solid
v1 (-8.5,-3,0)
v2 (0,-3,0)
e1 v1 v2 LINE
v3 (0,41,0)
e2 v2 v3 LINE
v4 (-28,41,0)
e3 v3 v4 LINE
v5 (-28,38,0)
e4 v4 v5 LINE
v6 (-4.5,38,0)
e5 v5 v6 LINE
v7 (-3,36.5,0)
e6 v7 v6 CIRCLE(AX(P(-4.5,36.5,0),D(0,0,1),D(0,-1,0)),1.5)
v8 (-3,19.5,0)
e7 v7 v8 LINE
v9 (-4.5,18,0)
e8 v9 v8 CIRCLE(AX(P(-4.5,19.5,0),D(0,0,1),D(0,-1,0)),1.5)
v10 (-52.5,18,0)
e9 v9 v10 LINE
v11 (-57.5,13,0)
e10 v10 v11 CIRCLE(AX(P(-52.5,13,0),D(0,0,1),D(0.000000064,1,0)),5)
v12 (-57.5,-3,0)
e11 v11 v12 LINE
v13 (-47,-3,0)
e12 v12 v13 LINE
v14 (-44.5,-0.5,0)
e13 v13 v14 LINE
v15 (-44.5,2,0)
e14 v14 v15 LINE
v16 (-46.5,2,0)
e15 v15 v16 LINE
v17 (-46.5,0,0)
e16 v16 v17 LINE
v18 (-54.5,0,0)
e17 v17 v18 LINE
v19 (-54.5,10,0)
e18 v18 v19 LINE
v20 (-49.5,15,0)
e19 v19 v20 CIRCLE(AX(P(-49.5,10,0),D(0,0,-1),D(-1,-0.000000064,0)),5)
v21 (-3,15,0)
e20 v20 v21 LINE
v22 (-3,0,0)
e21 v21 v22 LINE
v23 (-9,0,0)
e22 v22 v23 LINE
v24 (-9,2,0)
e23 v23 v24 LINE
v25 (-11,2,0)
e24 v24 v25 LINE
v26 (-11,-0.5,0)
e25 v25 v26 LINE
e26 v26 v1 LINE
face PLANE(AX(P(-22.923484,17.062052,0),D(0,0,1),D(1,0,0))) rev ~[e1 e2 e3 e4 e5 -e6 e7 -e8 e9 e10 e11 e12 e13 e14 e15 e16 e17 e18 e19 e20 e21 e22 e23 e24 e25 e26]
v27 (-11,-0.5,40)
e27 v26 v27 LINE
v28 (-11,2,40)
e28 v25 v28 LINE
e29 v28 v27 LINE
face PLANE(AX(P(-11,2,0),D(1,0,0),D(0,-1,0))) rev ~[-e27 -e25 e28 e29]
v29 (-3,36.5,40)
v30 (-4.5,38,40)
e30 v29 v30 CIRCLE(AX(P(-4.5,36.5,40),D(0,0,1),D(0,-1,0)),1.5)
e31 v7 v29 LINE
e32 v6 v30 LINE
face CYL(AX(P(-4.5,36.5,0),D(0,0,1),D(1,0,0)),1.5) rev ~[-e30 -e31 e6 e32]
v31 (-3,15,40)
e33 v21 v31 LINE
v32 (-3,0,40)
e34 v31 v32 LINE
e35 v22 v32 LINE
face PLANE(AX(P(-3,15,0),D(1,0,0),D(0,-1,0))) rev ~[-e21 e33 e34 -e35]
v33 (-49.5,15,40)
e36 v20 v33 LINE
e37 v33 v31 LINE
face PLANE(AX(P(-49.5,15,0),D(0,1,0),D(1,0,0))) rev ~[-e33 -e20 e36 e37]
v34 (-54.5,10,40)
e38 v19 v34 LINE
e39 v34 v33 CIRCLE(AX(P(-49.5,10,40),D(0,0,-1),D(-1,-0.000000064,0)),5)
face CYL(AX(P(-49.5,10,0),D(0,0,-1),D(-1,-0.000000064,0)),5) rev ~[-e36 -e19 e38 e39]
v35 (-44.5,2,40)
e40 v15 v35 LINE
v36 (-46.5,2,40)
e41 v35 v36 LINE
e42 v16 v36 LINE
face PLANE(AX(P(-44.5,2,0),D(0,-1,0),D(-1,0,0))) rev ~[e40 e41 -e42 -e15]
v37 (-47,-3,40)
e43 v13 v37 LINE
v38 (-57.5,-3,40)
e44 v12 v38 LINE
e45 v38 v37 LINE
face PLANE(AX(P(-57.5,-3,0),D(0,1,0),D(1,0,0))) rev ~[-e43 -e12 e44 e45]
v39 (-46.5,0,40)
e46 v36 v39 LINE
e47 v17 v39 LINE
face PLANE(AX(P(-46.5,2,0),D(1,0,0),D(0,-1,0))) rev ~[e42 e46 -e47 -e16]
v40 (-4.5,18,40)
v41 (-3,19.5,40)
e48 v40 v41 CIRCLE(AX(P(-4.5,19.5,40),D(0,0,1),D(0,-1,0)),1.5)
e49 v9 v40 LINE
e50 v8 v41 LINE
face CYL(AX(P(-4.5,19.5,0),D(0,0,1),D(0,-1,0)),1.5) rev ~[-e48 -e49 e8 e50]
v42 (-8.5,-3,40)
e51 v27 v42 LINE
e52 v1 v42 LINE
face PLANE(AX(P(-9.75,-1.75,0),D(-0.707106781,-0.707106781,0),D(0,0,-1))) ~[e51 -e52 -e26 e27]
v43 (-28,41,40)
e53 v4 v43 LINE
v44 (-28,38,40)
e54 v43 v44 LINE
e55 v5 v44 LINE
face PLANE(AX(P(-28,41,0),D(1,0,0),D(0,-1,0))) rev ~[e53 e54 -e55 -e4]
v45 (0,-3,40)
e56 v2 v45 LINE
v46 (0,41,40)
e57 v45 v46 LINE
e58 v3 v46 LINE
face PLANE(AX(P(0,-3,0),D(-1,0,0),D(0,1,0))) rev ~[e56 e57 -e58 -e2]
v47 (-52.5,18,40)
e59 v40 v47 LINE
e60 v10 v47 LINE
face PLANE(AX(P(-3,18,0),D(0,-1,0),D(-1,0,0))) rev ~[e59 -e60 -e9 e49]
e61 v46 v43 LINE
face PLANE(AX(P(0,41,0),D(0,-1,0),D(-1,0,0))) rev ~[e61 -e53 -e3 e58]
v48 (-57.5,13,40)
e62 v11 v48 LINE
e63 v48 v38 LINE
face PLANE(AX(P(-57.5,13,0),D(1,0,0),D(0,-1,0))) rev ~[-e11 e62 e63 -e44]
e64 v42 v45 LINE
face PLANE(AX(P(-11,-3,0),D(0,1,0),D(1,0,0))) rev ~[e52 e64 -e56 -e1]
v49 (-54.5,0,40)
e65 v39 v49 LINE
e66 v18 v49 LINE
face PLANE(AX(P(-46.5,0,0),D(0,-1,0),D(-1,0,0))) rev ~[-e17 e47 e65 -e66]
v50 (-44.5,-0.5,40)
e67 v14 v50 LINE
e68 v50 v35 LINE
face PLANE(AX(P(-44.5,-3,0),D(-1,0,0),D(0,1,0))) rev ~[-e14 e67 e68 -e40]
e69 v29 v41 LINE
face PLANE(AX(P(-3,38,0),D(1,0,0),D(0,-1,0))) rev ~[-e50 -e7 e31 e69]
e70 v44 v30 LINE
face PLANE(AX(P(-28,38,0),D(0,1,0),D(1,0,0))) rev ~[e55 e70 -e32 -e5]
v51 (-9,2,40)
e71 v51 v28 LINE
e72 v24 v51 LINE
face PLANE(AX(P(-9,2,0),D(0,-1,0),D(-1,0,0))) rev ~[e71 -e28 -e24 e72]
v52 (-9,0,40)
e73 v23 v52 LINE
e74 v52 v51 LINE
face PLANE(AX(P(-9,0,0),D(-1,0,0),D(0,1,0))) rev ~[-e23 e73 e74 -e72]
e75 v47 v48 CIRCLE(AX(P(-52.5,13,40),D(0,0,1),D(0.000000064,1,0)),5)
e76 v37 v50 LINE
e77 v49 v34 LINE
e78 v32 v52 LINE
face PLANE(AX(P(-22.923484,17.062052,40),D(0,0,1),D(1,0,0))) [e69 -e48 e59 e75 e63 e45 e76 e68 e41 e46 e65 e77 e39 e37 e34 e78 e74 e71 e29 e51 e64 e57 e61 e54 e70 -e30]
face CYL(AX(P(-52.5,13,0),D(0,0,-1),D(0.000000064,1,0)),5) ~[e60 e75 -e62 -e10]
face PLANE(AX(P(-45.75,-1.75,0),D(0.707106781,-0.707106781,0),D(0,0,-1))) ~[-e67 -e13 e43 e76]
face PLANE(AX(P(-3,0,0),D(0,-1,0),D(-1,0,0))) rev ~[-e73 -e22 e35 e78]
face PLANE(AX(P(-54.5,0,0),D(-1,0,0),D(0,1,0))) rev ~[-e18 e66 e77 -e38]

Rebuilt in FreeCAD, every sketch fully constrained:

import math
import FreeCAD as App
import Part
import Sketcher


def edges_at(feature, points):
    """Names of the edges that pass closest to the given points."""
    edges = feature.Shape.Edges
    near = lambda p: min(range(len(edges)), key=lambda i: edges[i].distToShape(Part.Vertex(*p))[0])
    return sorted({f"Edge{near(p) + 1}" for p in points})

doc = App.newDocument("Part")
body = doc.addObject("PartDesign::Body", "Body")

sketch1 = body.newObject("Sketcher::SketchObject", "Sketch")
sketch1.AttachmentSupport = (doc.getObject("XY_Plane"), [""])
sketch1.MapMode = "FlatFace"
sketch1.addGeometry([
    Part.LineSegment(App.Vector(0, -3, 0), App.Vector(0, 41, 0)),
    Part.LineSegment(App.Vector(0, 41, 0), App.Vector(-28, 41, 0)),
    Part.LineSegment(App.Vector(-28, 41, 0), App.Vector(-28, 38, 0)),
    Part.LineSegment(App.Vector(-28, 38, 0), App.Vector(-3, 38, 0)),
    Part.LineSegment(App.Vector(-3, 38, 0), App.Vector(-3, 18, 0)),
    Part.LineSegment(App.Vector(-3, 18, 0), App.Vector(-52.5, 18, 0)),
    Part.ArcOfCircle(Part.Circle(App.Vector(-52.5, 13, 0), App.Vector(0, 0, 1), 5), math.radians(90), math.radians(180)),
    Part.LineSegment(App.Vector(-57.5, 13, 0), App.Vector(-57.5, -3, 0)),
    Part.LineSegment(App.Vector(-57.5, -3, 0), App.Vector(-44.5, -3, 0)),
    Part.LineSegment(App.Vector(-44.5, -3, 0), App.Vector(-44.5, 2, 0)),
    Part.LineSegment(App.Vector(-44.5, 2, 0), App.Vector(-46.5, 2, 0)),
    Part.LineSegment(App.Vector(-46.5, 2, 0), App.Vector(-46.5, 0, 0)),
    Part.LineSegment(App.Vector(-46.5, 0, 0), App.Vector(-54.5, 0, 0)),
    Part.LineSegment(App.Vector(-54.5, 0, 0), App.Vector(-54.5, 10, 0)),
    Part.ArcOfCircle(Part.Circle(App.Vector(-49.5, 10, 0), App.Vector(0, 0, 1), 5), math.radians(90), math.radians(180)),
    Part.LineSegment(App.Vector(-49.5, 15, 0), App.Vector(-3, 15, 0)),
    Part.LineSegment(App.Vector(-3, 15, 0), App.Vector(-3, 0, 0)),
    Part.LineSegment(App.Vector(-3, 0, 0), App.Vector(-9, 0, 0)),
    Part.LineSegment(App.Vector(-9, 0, 0), App.Vector(-9, 2, 0)),
    Part.LineSegment(App.Vector(-9, 2, 0), App.Vector(-11, 2, 0)),
    Part.LineSegment(App.Vector(-11, 2, 0), App.Vector(-11, -3, 0)),
    Part.LineSegment(App.Vector(-11, -3, 0), App.Vector(0, -3, 0)),
], False)
sketch1.addConstraint([
    Sketcher.Constraint("Coincident", 0, 2, 1, 1),
    Sketcher.Constraint("Coincident", 1, 2, 2, 1),
    Sketcher.Constraint("Coincident", 2, 2, 3, 1),
    Sketcher.Constraint("Coincident", 3, 2, 4, 1),
    Sketcher.Constraint("Coincident", 4, 2, 5, 1),
    Sketcher.Constraint("Tangent", 5, 2, 6, 1),
    Sketcher.Constraint("Tangent", 6, 2, 7, 1),
    Sketcher.Constraint("Coincident", 7, 2, 8, 1),
    Sketcher.Constraint("Coincident", 8, 2, 9, 1),
    Sketcher.Constraint("Coincident", 9, 2, 10, 1),
    Sketcher.Constraint("Coincident", 10, 2, 11, 1),
    Sketcher.Constraint("Coincident", 11, 2, 12, 1),
    Sketcher.Constraint("Coincident", 12, 2, 13, 1),
    Sketcher.Constraint("Tangent", 13, 2, 14, 2),
    Sketcher.Constraint("Tangent", 14, 1, 15, 1),
    Sketcher.Constraint("Coincident", 15, 2, 16, 1),
    Sketcher.Constraint("Coincident", 16, 2, 17, 1),
    Sketcher.Constraint("Coincident", 17, 2, 18, 1),
    Sketcher.Constraint("Coincident", 18, 2, 19, 1),
    Sketcher.Constraint("Coincident", 19, 2, 20, 1),
    Sketcher.Constraint("Coincident", 20, 2, 21, 1),
    Sketcher.Constraint("Coincident", 21, 2, 0, 1),
    Sketcher.Constraint("Vertical", 0),
    Sketcher.Constraint("Horizontal", 1),
    Sketcher.Constraint("Vertical", 2),
    Sketcher.Constraint("Horizontal", 3),
    Sketcher.Constraint("Vertical", 4),
    Sketcher.Constraint("Horizontal", 5),
    Sketcher.Constraint("Vertical", 7),
    Sketcher.Constraint("Horizontal", 8),
    Sketcher.Constraint("Vertical", 9),
    Sketcher.Constraint("Horizontal", 10),
    Sketcher.Constraint("Vertical", 11),
    Sketcher.Constraint("Horizontal", 12),
    Sketcher.Constraint("Vertical", 13),
    Sketcher.Constraint("Horizontal", 15),
    Sketcher.Constraint("Vertical", 16),
    Sketcher.Constraint("Horizontal", 17),
    Sketcher.Constraint("Vertical", 18),
    Sketcher.Constraint("Horizontal", 19),
    Sketcher.Constraint("Vertical", 20),
    Sketcher.Constraint("Horizontal", 21),
    Sketcher.Constraint("Equal", 6, 14),
    Sketcher.Constraint("PointOnObject", 0, 2, -2),
    Sketcher.Constraint("PointOnObject", 11, 2, -1),
    Sketcher.Constraint("PointOnObject", 16, 2, -1),
    Sketcher.Constraint("Horizontal", 10, 2, 18, 2),
    Sketcher.Constraint("Horizontal", 8, 2, 20, 2),
    Sketcher.Constraint("Vertical", 4, 2, 15, 2),
    Sketcher.Constraint("Equal", 10, 19),
    Sketcher.Constraint("Equal", 19, 11),
    Sketcher.Constraint("Radius", 6, 5.0),
    Sketcher.Constraint("DistanceX", 1, 2, 1, 1, 28.0),
    Sketcher.Constraint("DistanceX", 3, 1, 3, 2, 25.0),
    Sketcher.Constraint("DistanceX", 8, 1, 8, 2, 13.0),
    Sketcher.Constraint("DistanceX", 10, 2, 10, 1, 2.0),
    Sketcher.Constraint("DistanceX", 12, 2, 12, 1, 8.0),
    Sketcher.Constraint("DistanceX", 17, 2, 17, 1, 6.0),
    Sketcher.Constraint("DistanceY", 0, 1, 0, 2, 44.0),
    Sketcher.Constraint("DistanceY", 2, 2, 2, 1, 3.0),
    Sketcher.Constraint("DistanceY", 4, 2, 4, 1, 20.0),
    Sketcher.Constraint("DistanceY", 9, 1, 9, 2, 5.0),
    Sketcher.Constraint("DistanceY", 13, 1, 13, 2, 10.0),
    Sketcher.Constraint("DistanceX", 5, 2, 5, 1, 49.5),
])
pad1 = body.newObject("PartDesign::Pad", "Pad")
pad1.Profile = sketch1
pad1.Length = 40
doc.recompute()

chamfer = body.newObject("PartDesign::Chamfer", "Chamfer")
chamfer.Base = (pad1, edges_at(pad1, [(-11, -3, 20), (-44.5, -3, 20)]))
chamfer.Size = 2.5
doc.recompute()

fillet = body.newObject("PartDesign::Fillet", "Fillet")
fillet.Base = (chamfer, edges_at(chamfer, [(-3, 18, 20), (-3, 38, 20)]))
fillet.Radius = 1.5

doc.recompute()
